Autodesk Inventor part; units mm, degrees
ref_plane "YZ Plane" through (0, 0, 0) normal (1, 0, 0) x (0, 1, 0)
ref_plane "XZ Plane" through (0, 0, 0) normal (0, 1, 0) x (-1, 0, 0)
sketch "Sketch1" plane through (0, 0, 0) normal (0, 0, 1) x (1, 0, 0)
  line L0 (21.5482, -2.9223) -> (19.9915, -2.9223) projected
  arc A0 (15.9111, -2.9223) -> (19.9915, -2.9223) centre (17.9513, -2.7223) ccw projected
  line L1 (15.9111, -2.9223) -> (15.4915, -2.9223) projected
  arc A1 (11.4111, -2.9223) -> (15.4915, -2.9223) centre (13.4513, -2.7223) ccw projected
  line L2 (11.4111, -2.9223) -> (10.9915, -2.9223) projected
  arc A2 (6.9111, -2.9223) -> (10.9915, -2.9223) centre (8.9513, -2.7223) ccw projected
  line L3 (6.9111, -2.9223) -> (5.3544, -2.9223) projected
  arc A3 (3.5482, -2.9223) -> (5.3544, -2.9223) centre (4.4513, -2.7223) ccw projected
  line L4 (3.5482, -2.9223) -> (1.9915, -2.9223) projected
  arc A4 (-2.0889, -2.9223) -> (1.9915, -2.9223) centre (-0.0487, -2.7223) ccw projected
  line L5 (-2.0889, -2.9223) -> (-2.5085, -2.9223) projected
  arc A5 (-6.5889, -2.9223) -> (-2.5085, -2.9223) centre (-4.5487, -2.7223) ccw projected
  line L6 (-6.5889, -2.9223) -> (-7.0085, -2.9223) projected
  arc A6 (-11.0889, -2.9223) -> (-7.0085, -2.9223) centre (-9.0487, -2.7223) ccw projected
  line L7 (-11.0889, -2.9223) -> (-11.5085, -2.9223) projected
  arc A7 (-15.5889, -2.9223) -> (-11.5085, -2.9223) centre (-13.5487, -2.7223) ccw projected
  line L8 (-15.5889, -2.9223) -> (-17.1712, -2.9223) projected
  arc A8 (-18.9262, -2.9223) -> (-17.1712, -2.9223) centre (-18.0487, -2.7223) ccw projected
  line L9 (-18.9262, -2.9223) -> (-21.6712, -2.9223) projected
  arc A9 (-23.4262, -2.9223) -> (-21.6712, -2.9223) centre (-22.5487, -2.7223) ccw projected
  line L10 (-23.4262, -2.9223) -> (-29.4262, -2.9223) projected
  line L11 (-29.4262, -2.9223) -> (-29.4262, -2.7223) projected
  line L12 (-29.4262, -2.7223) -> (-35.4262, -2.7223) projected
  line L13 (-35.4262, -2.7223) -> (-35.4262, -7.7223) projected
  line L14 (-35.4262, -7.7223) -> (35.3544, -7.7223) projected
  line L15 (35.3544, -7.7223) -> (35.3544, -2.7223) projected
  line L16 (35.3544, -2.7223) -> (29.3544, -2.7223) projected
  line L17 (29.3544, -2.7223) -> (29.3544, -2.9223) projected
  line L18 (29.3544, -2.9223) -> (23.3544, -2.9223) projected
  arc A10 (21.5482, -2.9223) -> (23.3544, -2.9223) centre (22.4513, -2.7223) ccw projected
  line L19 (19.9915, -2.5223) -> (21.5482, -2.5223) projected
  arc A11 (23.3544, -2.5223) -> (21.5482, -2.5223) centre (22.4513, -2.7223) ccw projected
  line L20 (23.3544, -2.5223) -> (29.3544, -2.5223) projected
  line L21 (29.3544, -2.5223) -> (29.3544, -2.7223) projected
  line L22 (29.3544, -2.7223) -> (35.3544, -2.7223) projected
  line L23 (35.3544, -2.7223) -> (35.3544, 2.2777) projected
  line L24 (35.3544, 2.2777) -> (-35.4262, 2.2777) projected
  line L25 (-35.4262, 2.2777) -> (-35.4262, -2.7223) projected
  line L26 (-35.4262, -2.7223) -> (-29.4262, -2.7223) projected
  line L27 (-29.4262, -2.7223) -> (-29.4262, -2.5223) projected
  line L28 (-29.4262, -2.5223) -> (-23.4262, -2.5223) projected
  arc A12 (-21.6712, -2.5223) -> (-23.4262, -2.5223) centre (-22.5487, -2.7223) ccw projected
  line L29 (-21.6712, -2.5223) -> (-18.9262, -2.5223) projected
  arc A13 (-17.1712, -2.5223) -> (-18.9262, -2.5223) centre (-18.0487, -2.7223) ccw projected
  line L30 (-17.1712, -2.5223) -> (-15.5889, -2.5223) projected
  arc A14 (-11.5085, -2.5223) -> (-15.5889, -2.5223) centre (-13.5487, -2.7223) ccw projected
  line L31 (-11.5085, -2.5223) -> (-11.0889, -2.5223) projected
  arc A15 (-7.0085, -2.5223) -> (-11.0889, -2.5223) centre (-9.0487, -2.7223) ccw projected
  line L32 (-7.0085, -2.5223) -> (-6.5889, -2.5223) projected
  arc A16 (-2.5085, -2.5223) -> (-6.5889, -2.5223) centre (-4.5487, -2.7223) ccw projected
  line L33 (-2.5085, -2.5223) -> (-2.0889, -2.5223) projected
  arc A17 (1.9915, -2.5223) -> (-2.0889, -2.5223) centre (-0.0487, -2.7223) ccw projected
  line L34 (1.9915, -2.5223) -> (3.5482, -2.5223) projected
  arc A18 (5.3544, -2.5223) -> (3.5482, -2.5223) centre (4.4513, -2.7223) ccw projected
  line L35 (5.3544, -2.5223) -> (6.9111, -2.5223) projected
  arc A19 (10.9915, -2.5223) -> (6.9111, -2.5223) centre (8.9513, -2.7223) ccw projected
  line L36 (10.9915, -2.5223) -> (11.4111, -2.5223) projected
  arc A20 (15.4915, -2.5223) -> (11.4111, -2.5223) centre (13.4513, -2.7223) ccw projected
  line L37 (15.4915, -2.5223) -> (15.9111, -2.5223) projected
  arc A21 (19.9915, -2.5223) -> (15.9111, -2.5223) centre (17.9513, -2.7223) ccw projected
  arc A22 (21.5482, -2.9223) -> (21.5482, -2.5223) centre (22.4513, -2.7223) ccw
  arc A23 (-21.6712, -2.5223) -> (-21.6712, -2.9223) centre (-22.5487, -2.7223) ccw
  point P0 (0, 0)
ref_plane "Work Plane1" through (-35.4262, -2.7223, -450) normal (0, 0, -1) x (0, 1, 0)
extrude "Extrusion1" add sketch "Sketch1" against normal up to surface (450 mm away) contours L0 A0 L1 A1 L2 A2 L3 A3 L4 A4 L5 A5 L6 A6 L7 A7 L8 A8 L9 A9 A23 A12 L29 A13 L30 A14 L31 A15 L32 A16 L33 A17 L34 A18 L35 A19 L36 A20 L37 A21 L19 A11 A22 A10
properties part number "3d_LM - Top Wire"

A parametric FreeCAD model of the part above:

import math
import FreeCAD as App
import Part
import Sketcher

V = App.Vector

doc = App.newDocument("Part")
body = doc.addObject("PartDesign::Body", "Body")

sketch1 = body.newObject("Sketcher::SketchObject", "Sketch")
sketch1.AttachmentSupport = (doc.getObject("XY_Plane"), [""])
sketch1.MapMode = "FlatFace"
sketch1.addGeometry([
    Part.LineSegment(V(19.99, -2.92, 0), V(21.55, -2.92, 0)),
    Part.ArcOfCircle(Part.Circle(V(22.45, -2.72, 0), V(0, 0, 1), 0.92), math.radians(-168), math.radians(168)),
    Part.LineSegment(V(21.55, -2.52, 0), V(19.99, -2.52, 0)),
    Part.ArcOfCircle(Part.Circle(V(17.95, -2.72, 0), V(0, 0, 1), 2.05), math.radians(6), math.radians(174)),
    Part.LineSegment(V(15.91, -2.52, 0), V(15.49, -2.52, 0)),
    Part.ArcOfCircle(Part.Circle(V(13.45, -2.72, 0), V(0, 0, 1), 2.05), math.radians(6), math.radians(174)),
    Part.LineSegment(V(11.41, -2.52, 0), V(10.99, -2.52, 0)),
    Part.ArcOfCircle(Part.Circle(V(8.95, -2.72, 0), V(0, 0, 1), 2.05), math.radians(6), math.radians(174)),
    Part.LineSegment(V(6.91, -2.52, 0), V(5.35, -2.52, 0)),
    Part.ArcOfCircle(Part.Circle(V(4.45, -2.72, 0), V(0, 0, 1), 0.92), math.radians(12), math.radians(168)),
    Part.LineSegment(V(3.55, -2.52, 0), V(1.99, -2.52, 0)),
    Part.ArcOfCircle(Part.Circle(V(-0.05, -2.72, 0), V(0, 0, 1), 2.05), math.radians(6), math.radians(174)),
    Part.LineSegment(V(-2.09, -2.52, 0), V(-2.51, -2.52, 0)),
    Part.ArcOfCircle(Part.Circle(V(-4.55, -2.72, 0), V(0, 0, 1), 2.05), math.radians(6), math.radians(174)),
    Part.LineSegment(V(-6.59, -2.52, 0), V(-7.01, -2.52, 0)),
    Part.ArcOfCircle(Part.Circle(V(-9.05, -2.72, 0), V(0, 0, 1), 2.05), math.radians(6), math.radians(174)),
    Part.LineSegment(V(-11.09, -2.52, 0), V(-11.51, -2.52, 0)),
    Part.ArcOfCircle(Part.Circle(V(-13.55, -2.72, 0), V(0, 0, 1), 2.05), math.radians(6), math.radians(174)),
    Part.LineSegment(V(-15.59, -2.52, 0), V(-17.17, -2.52, 0)),
    Part.ArcOfCircle(Part.Circle(V(-18.05, -2.72, 0), V(0, 0, 1), 0.9), math.radians(13), math.radians(167)),
    Part.LineSegment(V(-18.93, -2.52, 0), V(-21.67, -2.52, 0)),
    Part.ArcOfCircle(Part.Circle(V(-22.55, -2.72, 0), V(0, 0, 1), 0.9), math.radians(13), math.radians(347)),
    Part.LineSegment(V(-21.67, -2.92, 0), V(-18.93, -2.92, 0)),
    Part.ArcOfCircle(Part.Circle(V(-18.05, -2.72, 0), V(0, 0, 1), 0.9), math.radians(-167), math.radians(-13)),
    Part.LineSegment(V(-17.17, -2.92, 0), V(-15.59, -2.92, 0)),
    Part.ArcOfCircle(Part.Circle(V(-13.55, -2.72, 0), V(0, 0, 1), 2.05), math.radians(-174), math.radians(-6)),
    Part.LineSegment(V(-11.51, -2.92, 0), V(-11.09, -2.92, 0)),
    Part.ArcOfCircle(Part.Circle(V(-9.05, -2.72, 0), V(0, 0, 1), 2.05), math.radians(-174), math.radians(-6)),
    Part.LineSegment(V(-7.01, -2.92, 0), V(-6.59, -2.92, 0)),
    Part.ArcOfCircle(Part.Circle(V(-4.55, -2.72, 0), V(0, 0, 1), 2.05), math.radians(-174), math.radians(-6)),
    Part.LineSegment(V(-2.51, -2.92, 0), V(-2.09, -2.92, 0)),
    Part.ArcOfCircle(Part.Circle(V(-0.05, -2.72, 0), V(0, 0, 1), 2.05), math.radians(-174), math.radians(-6)),
    Part.LineSegment(V(1.99, -2.92, 0), V(3.55, -2.92, 0)),
    Part.ArcOfCircle(Part.Circle(V(4.45, -2.72, 0), V(0, 0, 1), 0.92), math.radians(-168), math.radians(-12)),
    Part.LineSegment(V(5.35, -2.92, 0), V(6.91, -2.92, 0)),
    Part.ArcOfCircle(Part.Circle(V(8.95, -2.72, 0), V(0, 0, 1), 2.05), math.radians(-174), math.radians(-6)),
    Part.LineSegment(V(10.99, -2.92, 0), V(11.41, -2.92, 0)),
    Part.ArcOfCircle(Part.Circle(V(13.45, -2.72, 0), V(0, 0, 1), 2.05), math.radians(-174), math.radians(-6)),
    Part.LineSegment(V(15.49, -2.92, 0), V(15.91, -2.92, 0)),
    Part.ArcOfCircle(Part.Circle(V(17.95, -2.72, 0), V(0, 0, 1), 2.05), math.radians(-174), math.radians(-6)),
], False)
sketch1.addConstraint([
    Sketcher.Constraint("Coincident", 0, 2, 1, 1),
    Sketcher.Constraint("Coincident", 1, 2, 2, 1),
    Sketcher.Constraint("Coincident", 2, 2, 3, 1),
    Sketcher.Constraint("Coincident", 3, 2, 4, 1),
    Sketcher.Constraint("Coincident", 4, 2, 5, 1),
    Sketcher.Constraint("Coincident", 5, 2, 6, 1),
    Sketcher.Constraint("Coincident", 6, 2, 7, 1),
    Sketcher.Constraint("Coincident", 7, 2, 8, 1),
    Sketcher.Constraint("Coincident", 8, 2, 9, 1),
    Sketcher.Constraint("Coincident", 9, 2, 10, 1),
    Sketcher.Constraint("Coincident", 10, 2, 11, 1),
    Sketcher.Constraint("Coincident", 11, 2, 12, 1),
    Sketcher.Constraint("Coincident", 12, 2, 13, 1),
    Sketcher.Constraint("Coincident", 13, 2, 14, 1),
    Sketcher.Constraint("Coincident", 14, 2, 15, 1),
    Sketcher.Constraint("Coincident", 15, 2, 16, 1),
    Sketcher.Constraint("Coincident", 16, 2, 17, 1),
    Sketcher.Constraint("Coincident", 17, 2, 18, 1),
    Sketcher.Constraint("Coincident", 18, 2, 19, 1),
    Sketcher.Constraint("Coincident", 19, 2, 20, 1),
    Sketcher.Constraint("Coincident", 20, 2, 21, 1),
    Sketcher.Constraint("Coincident", 21, 2, 22, 1),
    Sketcher.Constraint("Coincident", 22, 2, 23, 1),
    Sketcher.Constraint("Coincident", 23, 2, 24, 1),
    Sketcher.Constraint("Coincident", 24, 2, 25, 1),
    Sketcher.Constraint("Coincident", 25, 2, 26, 1),
    Sketcher.Constraint("Coincident", 26, 2, 27, 1),
    Sketcher.Constraint("Coincident", 27, 2, 28, 1),
    Sketcher.Constraint("Coincident", 28, 2, 29, 1),
    Sketcher.Constraint("Coincident", 29, 2, 30, 1),
    Sketcher.Constraint("Coincident", 30, 2, 31, 1),
    Sketcher.Constraint("Coincident", 31, 2, 32, 1),
    Sketcher.Constraint("Coincident", 32, 2, 33, 1),
    Sketcher.Constraint("Coincident", 33, 2, 34, 1),
    Sketcher.Constraint("Coincident", 34, 2, 35, 1),
    Sketcher.Constraint("Coincident", 35, 2, 36, 1),
    Sketcher.Constraint("Coincident", 36, 2, 37, 1),
    Sketcher.Constraint("Coincident", 37, 2, 38, 1),
    Sketcher.Constraint("Coincident", 38, 2, 39, 1),
    Sketcher.Constraint("Coincident", 39, 2, 0, 1),
    Sketcher.Constraint("Horizontal", 0),
    Sketcher.Constraint("Horizontal", 2),
    Sketcher.Constraint("Horizontal", 4),
    Sketcher.Constraint("Horizontal", 6),
    Sketcher.Constraint("Horizontal", 8),
    Sketcher.Constraint("Horizontal", 10),
    Sketcher.Constraint("Horizontal", 12),
    Sketcher.Constraint("Horizontal", 14),
    Sketcher.Constraint("Horizontal", 16),
    Sketcher.Constraint("Horizontal", 18),
    Sketcher.Constraint("Horizontal", 20),
    Sketcher.Constraint("Horizontal", 22),
    Sketcher.Constraint("Horizontal", 24),
    Sketcher.Constraint("Horizontal", 26),
    Sketcher.Constraint("Horizontal", 28),
    Sketcher.Constraint("Horizontal", 30),
    Sketcher.Constraint("Horizontal", 32),
    Sketcher.Constraint("Horizontal", 34),
    Sketcher.Constraint("Horizontal", 36),
    Sketcher.Constraint("Horizontal", 38),
    Sketcher.Constraint("Coincident", 23, 3, 19, 3),
    Sketcher.Constraint("Coincident", 25, 3, 17, 3),
    Sketcher.Constraint("Coincident", 27, 3, 15, 3),
    Sketcher.Constraint("Coincident", 29, 3, 13, 3),
    Sketcher.Constraint("Coincident", 31, 3, 11, 3),
    Sketcher.Constraint("Coincident", 33, 3, 9, 3),
    Sketcher.Constraint("Coincident", 35, 3, 7, 3),
    Sketcher.Constraint("Coincident", 37, 3, 5, 3),
    Sketcher.Constraint("Coincident", 39, 3, 3, 3),
    Sketcher.Constraint("Equal", 3, 5),
    Sketcher.Constraint("Equal", 5, 7),
    Sketcher.Constraint("Equal", 1, 9),
    Sketcher.Constraint("Equal", 7, 11),
    Sketcher.Constraint("Equal", 11, 13),
    Sketcher.Constraint("Equal", 13, 15),
    Sketcher.Constraint("Equal", 15, 17),
    Sketcher.Constraint("Equal", 19, 21),
    Sketcher.Constraint("Equal", 21, 23),
    Sketcher.Constraint("Equal", 17, 25),
    Sketcher.Constraint("Equal", 25, 27),
    Sketcher.Constraint("Equal", 27, 29),
    Sketcher.Constraint("Equal", 29, 31),
    Sketcher.Constraint("Equal", 9, 33),
    Sketcher.Constraint("Equal", 31, 35),
    Sketcher.Constraint("Equal", 35, 37),
    Sketcher.Constraint("Equal", 37, 39),
    Sketcher.Constraint("Horizontal", 1, 3, 3, 3),
    Sketcher.Constraint("Horizontal", 3, 3, 5, 3),
    Sketcher.Constraint("Horizontal", 5, 3, 7, 3),
    Sketcher.Constraint("Horizontal", 7, 3, 9, 3),
    Sketcher.Constraint("Horizontal", 9, 3, 11, 3),
    Sketcher.Constraint("Horizontal", 11, 3, 13, 3),
    Sketcher.Constraint("Horizontal", 13, 3, 15, 3),
    Sketcher.Constraint("Horizontal", 15, 3, 17, 3),
    Sketcher.Constraint("Horizontal", 17, 3, 19, 3),
    Sketcher.Constraint("Horizontal", 19, 3, 21, 3),
    Sketcher.Constraint("Horizontal", 2, 2, 3, 2),
    Sketcher.Constraint("Horizontal", 4, 2, 5, 2),
    Sketcher.Constraint("Horizontal", 6, 2, 7, 2),
    Sketcher.Constraint("Horizontal", 8, 2, 9, 2),
    Sketcher.Constraint("Horizontal", 10, 2, 11, 2),
    Sketcher.Constraint("Horizontal", 12, 2, 13, 2),
    Sketcher.Constraint("Horizontal", 14, 2, 15, 2),
    Sketcher.Constraint("Horizontal", 16, 2, 17, 2),
    Sketcher.Constraint("Horizontal", 18, 2, 19, 2),
    Sketcher.Constraint("Horizontal", 0, 2, 21, 2),
    Sketcher.Constraint("Horizontal", 22, 2, 23, 2),
    Sketcher.Constraint("Horizontal", 24, 2, 25, 2),
    Sketcher.Constraint("Horizontal", 26, 2, 27, 2),
    Sketcher.Constraint("Horizontal", 28, 2, 29, 2),
    Sketcher.Constraint("Horizontal", 30, 2, 31, 2),
    Sketcher.Constraint("Horizontal", 32, 2, 33, 2),
    Sketcher.Constraint("Horizontal", 34, 2, 35, 2),
    Sketcher.Constraint("Horizontal", 36, 2, 37, 2),
    Sketcher.Constraint("Vertical", 0, 2, 1, 2),
    Sketcher.Constraint("Equal", 4, 6),
    Sketcher.Constraint("Equal", 2, 8),
    Sketcher.Constraint("Equal", 8, 10),
    Sketcher.Constraint("Equal", 6, 12),
    Sketcher.Constraint("Equal", 12, 14),
    Sketcher.Constraint("Equal", 14, 16),
    Sketcher.Constraint("Radius", 19, 0.9),
    Sketcher.Constraint("Radius", 3, 2.05),
    Sketcher.Constraint("Radius", 1, 0.925),
    Sketcher.Constraint("DistanceX", 5, 3, 1, 3, 9.0),
    Sketcher.Constraint("DistanceX", 7, 3, 3, 3, 9.0),
    Sketcher.Constraint("DistanceX", 19, 3, 15, 3, 9.0),
    Sketcher.Constraint("DistanceX", 21, 3, 17, 3, 9.0),
    Sketcher.Constraint("DistanceY", 0, 2, 1, 3, 0.2),
    Sketcher.Constraint("DistanceX", -1, 1, 3, 2, 15.911),
    Sketcher.Constraint("DistanceY", 1, 3, -1, 1, 2.7223),
])
pad1 = body.newObject("PartDesign::Pad", "Pad")
pad1.Profile = sketch1
pad1.Length = 450
pad1.Reversed = True

doc.recompute()
